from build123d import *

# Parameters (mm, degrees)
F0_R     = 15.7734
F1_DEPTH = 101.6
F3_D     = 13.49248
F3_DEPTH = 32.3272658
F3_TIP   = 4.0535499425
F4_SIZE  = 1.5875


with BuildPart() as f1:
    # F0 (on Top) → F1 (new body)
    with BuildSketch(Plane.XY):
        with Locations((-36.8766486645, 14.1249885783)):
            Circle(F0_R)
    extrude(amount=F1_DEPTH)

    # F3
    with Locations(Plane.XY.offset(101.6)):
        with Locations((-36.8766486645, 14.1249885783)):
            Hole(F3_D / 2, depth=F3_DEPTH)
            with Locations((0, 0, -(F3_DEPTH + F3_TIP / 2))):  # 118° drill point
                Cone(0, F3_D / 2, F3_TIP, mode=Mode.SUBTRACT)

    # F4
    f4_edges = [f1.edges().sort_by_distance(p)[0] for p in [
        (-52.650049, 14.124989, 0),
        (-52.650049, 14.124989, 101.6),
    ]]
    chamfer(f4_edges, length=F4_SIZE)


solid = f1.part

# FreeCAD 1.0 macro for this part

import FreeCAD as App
import Part
import Sketcher
Q = App.Units.Quantity


def edges_at(feature, points):
    """Names of the edges that pass closest to the given points."""
    edges = feature.Shape.Edges
    near = lambda p: min(range(len(edges)), key=lambda i: edges[i].distToShape(Part.Vertex(*p))[0])
    return sorted({f"Edge{near(p) + 1}" for p in points})

doc = App.newDocument("Part")
params = doc.addObject("Spreadsheet::Sheet", "Params")
for row, (alias, value) in enumerate([
    ("sketch1_diameter", "1.242 in"),
    ("pad1_length", "4 in"),
    ("hole_diameter", "0.5312 in"),
    ("hole_depth", "32.327266 mm"),
    ("chamfer_size", "0.0625 in"),
], start=1):
    params.set(f"A{row}", alias)
    params.set(f"B{row}", "=" + value)
    params.setAlias(f"B{row}", alias)

body = doc.addObject("PartDesign::Body", "Body")

# Sketch on XY plane
sketch1 = body.newObject("Sketcher::SketchObject", "Sketch")
sketch1.AttachmentSupport = (doc.getObject("XY_Plane"), [""])
sketch1.MapMode = "FlatFace"
sketch1.addGeometry(Part.Circle(App.Vector(-37, 14, 0), App.Vector(0, 0, 1), 16), False)
sketch1.addConstraint([
    Sketcher.Constraint("Diameter", 0, Q("1.242 in")),
    Sketcher.Constraint("DistanceX", 0, 3, -1, 1, Q("36.876649 mm")),
    Sketcher.Constraint("DistanceY", -1, 1, 0, 3, Q("14.124989 mm")),
])
sketch1.setExpression("Constraints[0]", "Params.sketch1_diameter")
pad1 = body.newObject("PartDesign::Pad", "Pad")
pad1.Profile = sketch1
pad1.setExpression("Length", "Params.pad1_length")

# Sketch on XY plane
sketch2 = body.newObject("Sketcher::SketchObject", "Sketch001")
sketch2.AttachmentSupport = (doc.getObject("XY_Plane"), [""])
sketch2.MapMode = "FlatFace"
sketch2.AttachmentOffset = App.Placement(App.Vector(0, 0, 4 * 25.4), App.Rotation())
sketch2.addGeometry(Part.Circle(App.Vector(-37, 14, 0), App.Vector(0, 0, 1), 7), False)
sketch2.addConstraint([
    Sketcher.Constraint("Diameter", 0, Q("0.5312 in")),
    Sketcher.Constraint("DistanceX", 0, 3, -1, 1, Q("36.876649 mm")),
    Sketcher.Constraint("DistanceY", -1, 1, 0, 3, Q("14.124989 mm")),
])
doc.recompute()
hole = body.newObject("PartDesign::Hole", "Hole")
hole.Profile = sketch2
hole.ThreadType = "None"
hole.setExpression("Diameter", "Params.hole_diameter")
hole.DepthType = "Dimension"
hole.setExpression("Depth", "Params.hole_depth")
hole.DrillPoint = "Angled"
hole.DrillPointAngle = 118
doc.recompute()

chamfer = body.newObject("PartDesign::Chamfer", "Chamfer")
chamfer.Base = (hole, edges_at(hole, [(-52.65, 14.125, 0), (-52.65, 14.125, 101.6)]))
chamfer.setExpression("Size", "Params.chamfer_size")

doc.recompute()
